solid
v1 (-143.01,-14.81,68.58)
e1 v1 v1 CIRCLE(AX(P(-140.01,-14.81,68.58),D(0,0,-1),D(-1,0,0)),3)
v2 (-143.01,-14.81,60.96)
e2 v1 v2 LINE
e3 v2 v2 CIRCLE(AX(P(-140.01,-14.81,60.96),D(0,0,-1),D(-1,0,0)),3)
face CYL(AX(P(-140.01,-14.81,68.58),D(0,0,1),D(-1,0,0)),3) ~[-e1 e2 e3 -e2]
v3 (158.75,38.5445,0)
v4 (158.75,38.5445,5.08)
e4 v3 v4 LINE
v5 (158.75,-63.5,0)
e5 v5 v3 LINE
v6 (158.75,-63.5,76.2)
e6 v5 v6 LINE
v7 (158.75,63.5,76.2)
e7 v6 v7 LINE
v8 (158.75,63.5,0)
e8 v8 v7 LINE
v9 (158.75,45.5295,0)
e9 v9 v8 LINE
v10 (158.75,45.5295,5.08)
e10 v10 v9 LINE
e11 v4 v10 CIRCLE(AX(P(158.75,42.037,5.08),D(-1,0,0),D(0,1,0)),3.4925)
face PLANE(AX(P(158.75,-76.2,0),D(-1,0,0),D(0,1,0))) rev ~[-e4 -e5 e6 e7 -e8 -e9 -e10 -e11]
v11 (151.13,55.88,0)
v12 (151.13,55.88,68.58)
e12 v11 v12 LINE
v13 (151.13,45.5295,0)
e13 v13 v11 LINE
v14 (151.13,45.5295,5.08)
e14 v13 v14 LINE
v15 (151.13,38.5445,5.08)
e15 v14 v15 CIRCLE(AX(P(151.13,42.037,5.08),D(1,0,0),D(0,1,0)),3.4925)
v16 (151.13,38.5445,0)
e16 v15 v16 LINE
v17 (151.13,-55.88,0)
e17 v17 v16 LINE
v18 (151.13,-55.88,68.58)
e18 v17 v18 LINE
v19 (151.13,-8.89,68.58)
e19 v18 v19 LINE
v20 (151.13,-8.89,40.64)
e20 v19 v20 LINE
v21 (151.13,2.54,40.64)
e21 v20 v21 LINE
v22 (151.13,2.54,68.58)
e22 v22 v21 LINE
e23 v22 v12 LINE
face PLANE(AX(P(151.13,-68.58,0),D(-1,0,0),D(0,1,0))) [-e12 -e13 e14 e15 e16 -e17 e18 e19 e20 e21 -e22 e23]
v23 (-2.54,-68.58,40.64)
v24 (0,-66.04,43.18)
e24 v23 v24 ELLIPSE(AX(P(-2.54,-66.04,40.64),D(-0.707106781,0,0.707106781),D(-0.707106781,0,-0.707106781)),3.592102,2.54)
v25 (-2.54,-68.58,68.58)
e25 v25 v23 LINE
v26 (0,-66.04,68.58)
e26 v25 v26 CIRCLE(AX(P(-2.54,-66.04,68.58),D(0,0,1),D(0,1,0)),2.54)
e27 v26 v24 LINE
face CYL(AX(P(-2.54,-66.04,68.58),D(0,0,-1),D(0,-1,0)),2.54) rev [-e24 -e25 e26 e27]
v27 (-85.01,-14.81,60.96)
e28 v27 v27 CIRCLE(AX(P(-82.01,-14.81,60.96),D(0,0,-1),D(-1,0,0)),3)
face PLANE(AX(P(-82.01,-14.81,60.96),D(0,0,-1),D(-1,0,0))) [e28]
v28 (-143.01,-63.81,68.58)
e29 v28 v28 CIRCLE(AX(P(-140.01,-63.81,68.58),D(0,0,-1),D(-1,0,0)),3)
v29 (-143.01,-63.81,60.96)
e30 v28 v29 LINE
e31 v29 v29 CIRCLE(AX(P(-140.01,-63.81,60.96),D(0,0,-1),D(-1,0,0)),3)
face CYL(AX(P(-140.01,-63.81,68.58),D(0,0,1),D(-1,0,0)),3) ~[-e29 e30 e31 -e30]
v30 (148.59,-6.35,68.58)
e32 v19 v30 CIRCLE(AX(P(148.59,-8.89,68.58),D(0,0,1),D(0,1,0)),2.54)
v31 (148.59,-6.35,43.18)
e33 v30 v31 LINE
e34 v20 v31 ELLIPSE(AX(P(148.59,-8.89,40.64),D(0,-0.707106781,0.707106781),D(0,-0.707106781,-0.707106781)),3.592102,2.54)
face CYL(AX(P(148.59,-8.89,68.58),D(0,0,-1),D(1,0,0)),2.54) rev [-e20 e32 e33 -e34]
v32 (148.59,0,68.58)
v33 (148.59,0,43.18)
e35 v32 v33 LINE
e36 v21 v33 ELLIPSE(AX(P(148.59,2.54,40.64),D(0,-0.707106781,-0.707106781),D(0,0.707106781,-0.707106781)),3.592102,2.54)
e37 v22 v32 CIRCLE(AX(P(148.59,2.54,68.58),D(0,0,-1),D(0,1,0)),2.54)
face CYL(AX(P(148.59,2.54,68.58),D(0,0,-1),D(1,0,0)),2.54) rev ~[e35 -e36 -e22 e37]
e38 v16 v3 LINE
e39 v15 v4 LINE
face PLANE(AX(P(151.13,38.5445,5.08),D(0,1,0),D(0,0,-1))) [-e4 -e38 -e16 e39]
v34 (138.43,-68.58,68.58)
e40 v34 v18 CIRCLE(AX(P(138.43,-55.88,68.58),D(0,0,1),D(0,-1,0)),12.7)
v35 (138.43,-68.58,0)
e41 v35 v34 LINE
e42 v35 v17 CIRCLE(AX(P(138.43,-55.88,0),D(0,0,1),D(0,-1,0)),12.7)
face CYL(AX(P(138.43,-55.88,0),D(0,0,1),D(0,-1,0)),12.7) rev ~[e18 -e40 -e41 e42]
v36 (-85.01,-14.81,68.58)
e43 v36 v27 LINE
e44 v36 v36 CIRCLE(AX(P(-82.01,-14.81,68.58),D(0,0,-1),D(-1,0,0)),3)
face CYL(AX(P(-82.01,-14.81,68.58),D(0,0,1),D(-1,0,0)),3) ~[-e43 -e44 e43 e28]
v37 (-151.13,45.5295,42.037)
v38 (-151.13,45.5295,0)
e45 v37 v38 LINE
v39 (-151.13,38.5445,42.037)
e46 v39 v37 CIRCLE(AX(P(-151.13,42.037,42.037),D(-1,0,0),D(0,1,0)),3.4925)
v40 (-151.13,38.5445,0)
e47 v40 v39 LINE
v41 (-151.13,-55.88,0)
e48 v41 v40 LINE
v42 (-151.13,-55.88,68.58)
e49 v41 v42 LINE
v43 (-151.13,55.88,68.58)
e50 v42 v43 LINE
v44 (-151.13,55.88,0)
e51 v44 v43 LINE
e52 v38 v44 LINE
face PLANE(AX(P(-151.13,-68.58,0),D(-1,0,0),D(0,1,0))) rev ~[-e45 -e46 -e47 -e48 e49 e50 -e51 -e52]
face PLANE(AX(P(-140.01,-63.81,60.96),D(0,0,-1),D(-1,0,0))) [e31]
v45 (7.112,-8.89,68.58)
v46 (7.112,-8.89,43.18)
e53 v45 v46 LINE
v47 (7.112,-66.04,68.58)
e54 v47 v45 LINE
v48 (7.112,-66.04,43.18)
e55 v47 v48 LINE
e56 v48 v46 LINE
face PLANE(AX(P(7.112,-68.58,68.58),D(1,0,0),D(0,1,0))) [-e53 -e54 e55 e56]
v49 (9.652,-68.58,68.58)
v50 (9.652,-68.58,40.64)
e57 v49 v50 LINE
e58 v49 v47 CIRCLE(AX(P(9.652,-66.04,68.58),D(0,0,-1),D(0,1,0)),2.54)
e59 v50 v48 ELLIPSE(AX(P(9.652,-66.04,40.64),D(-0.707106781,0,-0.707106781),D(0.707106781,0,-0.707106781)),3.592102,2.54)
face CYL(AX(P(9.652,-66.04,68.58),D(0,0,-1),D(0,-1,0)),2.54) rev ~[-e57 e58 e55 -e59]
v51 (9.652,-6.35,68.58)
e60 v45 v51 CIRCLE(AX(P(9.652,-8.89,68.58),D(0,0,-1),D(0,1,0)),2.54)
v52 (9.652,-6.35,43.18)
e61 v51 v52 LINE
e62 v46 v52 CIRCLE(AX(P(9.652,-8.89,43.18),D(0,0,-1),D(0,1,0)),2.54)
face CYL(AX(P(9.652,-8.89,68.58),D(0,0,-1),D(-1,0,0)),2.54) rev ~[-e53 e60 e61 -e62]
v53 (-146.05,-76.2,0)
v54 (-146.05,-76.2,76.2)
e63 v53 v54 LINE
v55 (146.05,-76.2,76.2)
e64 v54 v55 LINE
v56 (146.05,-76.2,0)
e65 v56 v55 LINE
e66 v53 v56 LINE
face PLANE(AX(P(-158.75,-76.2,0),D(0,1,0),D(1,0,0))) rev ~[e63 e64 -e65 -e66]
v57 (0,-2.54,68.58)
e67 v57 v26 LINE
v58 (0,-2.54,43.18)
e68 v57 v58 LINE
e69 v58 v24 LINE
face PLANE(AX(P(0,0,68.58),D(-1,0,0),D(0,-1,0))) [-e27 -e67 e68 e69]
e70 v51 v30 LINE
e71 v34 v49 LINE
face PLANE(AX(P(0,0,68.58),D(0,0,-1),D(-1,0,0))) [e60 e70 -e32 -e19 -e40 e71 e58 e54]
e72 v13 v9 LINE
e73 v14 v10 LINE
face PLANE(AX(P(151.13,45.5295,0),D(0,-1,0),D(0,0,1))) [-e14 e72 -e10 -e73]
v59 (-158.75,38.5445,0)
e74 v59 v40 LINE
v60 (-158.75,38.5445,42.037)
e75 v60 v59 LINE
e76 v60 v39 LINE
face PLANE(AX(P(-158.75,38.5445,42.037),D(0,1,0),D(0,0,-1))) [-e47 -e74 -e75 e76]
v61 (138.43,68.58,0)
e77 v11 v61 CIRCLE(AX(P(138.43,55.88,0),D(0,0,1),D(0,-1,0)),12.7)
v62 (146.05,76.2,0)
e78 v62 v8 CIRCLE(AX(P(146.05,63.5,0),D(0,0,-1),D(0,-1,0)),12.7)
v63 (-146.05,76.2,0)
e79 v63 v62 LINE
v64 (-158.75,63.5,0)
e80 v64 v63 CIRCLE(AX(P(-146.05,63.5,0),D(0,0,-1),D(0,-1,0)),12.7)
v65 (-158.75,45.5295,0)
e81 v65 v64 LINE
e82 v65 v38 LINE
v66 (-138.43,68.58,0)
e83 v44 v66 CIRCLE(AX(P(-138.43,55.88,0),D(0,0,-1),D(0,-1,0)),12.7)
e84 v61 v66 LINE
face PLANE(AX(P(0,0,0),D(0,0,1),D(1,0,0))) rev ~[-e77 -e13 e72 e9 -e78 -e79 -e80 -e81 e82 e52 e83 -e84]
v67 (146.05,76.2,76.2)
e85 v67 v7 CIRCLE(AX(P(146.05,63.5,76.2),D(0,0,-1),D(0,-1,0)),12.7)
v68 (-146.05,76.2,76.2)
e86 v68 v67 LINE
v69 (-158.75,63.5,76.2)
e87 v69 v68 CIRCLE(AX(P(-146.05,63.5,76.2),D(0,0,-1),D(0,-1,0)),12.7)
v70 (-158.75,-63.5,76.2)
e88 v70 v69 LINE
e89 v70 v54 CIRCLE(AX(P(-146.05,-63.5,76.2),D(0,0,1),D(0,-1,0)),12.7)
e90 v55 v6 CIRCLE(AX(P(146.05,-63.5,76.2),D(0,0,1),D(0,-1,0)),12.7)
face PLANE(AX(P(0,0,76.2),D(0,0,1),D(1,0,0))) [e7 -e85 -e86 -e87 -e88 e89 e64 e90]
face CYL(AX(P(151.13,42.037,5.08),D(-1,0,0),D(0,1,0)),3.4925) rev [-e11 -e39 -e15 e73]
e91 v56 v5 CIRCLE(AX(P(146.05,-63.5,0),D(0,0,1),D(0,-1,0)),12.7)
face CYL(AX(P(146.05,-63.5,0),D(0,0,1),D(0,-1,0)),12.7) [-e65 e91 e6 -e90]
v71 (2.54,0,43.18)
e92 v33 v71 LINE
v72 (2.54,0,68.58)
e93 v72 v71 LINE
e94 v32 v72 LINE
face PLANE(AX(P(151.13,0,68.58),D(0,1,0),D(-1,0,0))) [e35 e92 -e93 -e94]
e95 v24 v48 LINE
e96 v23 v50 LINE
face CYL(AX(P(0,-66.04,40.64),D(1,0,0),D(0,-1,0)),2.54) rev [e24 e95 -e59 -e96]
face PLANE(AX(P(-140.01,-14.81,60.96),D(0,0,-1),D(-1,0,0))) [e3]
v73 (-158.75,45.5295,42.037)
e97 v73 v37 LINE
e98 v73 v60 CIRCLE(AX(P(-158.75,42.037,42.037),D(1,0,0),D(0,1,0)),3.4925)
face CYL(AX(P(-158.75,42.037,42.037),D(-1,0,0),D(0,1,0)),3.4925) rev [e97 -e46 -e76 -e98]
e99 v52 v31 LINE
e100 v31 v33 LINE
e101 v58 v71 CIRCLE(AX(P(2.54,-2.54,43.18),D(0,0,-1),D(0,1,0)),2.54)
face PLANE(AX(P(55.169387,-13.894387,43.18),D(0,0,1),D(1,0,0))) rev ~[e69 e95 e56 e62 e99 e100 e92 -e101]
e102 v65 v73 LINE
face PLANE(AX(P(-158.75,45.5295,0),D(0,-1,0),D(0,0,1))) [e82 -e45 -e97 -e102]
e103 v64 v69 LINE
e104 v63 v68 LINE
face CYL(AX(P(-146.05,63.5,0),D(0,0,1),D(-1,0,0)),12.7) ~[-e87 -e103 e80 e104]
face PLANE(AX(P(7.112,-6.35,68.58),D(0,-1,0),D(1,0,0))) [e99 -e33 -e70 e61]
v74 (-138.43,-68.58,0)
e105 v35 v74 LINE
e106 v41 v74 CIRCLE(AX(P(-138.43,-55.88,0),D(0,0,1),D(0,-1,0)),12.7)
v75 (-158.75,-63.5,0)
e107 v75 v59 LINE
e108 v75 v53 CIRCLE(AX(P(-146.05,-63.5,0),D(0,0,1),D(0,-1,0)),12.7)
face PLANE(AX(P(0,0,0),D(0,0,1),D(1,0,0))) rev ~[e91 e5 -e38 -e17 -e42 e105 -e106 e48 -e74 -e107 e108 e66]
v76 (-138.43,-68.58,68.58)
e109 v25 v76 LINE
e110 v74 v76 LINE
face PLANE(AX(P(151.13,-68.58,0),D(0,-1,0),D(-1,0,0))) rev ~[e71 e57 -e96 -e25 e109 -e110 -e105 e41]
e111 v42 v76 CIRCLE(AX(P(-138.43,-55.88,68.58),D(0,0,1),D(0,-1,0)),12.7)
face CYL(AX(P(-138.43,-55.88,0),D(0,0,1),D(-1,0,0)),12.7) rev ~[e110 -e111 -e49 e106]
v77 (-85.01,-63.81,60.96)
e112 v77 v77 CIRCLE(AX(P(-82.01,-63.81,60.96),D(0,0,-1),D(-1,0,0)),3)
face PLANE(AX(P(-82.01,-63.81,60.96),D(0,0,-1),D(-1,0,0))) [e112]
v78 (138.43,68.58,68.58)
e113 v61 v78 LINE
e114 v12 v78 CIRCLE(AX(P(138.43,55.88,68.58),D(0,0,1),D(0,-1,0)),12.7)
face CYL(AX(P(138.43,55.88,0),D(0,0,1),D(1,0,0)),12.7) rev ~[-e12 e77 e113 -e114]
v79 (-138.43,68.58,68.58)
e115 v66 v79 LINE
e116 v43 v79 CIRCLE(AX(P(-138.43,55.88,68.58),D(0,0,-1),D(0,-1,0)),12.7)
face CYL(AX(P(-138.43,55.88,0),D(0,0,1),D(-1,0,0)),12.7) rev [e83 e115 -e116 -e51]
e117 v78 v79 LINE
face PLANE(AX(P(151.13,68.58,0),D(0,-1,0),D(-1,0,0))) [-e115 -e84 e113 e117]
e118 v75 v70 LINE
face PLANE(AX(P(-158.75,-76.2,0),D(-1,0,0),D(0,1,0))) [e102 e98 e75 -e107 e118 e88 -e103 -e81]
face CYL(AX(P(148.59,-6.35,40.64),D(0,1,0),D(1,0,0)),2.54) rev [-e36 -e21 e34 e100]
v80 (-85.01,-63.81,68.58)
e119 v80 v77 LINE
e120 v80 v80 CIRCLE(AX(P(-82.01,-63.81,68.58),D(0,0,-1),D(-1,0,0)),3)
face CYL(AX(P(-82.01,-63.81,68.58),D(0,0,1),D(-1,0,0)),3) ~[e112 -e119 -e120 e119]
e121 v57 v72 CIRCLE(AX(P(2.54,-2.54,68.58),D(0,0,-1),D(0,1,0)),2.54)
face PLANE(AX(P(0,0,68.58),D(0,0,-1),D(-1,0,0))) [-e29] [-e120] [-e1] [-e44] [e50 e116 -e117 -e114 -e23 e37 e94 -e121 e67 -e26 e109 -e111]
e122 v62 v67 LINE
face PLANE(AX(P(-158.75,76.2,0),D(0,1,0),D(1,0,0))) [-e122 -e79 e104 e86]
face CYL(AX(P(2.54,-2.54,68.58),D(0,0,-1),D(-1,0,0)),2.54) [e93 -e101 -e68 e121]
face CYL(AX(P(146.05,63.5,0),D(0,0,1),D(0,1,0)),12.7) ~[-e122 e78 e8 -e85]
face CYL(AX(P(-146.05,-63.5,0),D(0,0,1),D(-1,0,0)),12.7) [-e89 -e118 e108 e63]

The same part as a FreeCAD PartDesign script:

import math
import FreeCAD as App
import Part
import Sketcher
Q = App.Units.Quantity


def edges_at(feature, points):
    """Names of the edges that pass closest to the given points."""
    edges = feature.Shape.Edges
    near = lambda p: min(range(len(edges)), key=lambda i: edges[i].distToShape(Part.Vertex(*p))[0])
    return sorted({f"Edge{near(p) + 1}" for p in points})


def add_polygon(sketch, points):
    """Adds a closed chain of lines whose ends are joined by coincident constraints."""
    first, n = sketch.GeometryCount, len(points)
    for a, b in zip(points, points[1:] + points[:1]):
        sketch.addGeometry(Part.LineSegment(App.Vector(*a, 0), App.Vector(*b, 0)), False)
    for i in range(n):
        sketch.addConstraint(Sketcher.Constraint("Coincident", first + i, 2, first + (i + 1) % n, 1))

doc = App.newDocument("Part")
body = doc.addObject("PartDesign::Body", "Body")

sketch1 = body.newObject("Sketcher::SketchObject", "Sketch")
sketch1.AttachmentSupport = (doc.getObject("XY_Plane"), [""])
sketch1.MapMode = "FlatFace"
add_polygon(sketch1, [(-159, 76), (-159, -76), (159, -76), (159, 76)])
sketch1.addConstraint([
    Sketcher.Constraint("Vertical", 0),
    Sketcher.Constraint("Horizontal", 1),
    Sketcher.Constraint("Vertical", 2),
    Sketcher.Constraint("Horizontal", 3),
    Sketcher.Constraint("Symmetric", 0, 2, 2, 2, -1, 1),
    Sketcher.Constraint("DistanceY", 0, 2, 0, 1, Q("6 in")),
    Sketcher.Constraint("DistanceX", 1, 1, 1, 2, Q("12.5 in")),
])
pad1 = body.newObject("PartDesign::Pad", "Pad")
pad1.Profile = sketch1
pad1.Length = Q("3 in")

sketch2 = body.newObject("Sketcher::SketchObject", "Sketch001")
sketch2.AttachmentSupport = (doc.getObject("XY_Plane"), [""])
sketch2.MapMode = "FlatFace"
add_polygon(sketch2, [(151, 69), (151, -69), (-151, -69), (-151, 69)])
sketch2.addConstraint([
    Sketcher.Constraint("Vertical", 0),
    Sketcher.Constraint("Horizontal", 1),
    Sketcher.Constraint("Vertical", 2),
    Sketcher.Constraint("Horizontal", 3),
    Sketcher.Constraint("Symmetric", 0, 2, 2, 2, -1, 1),
    Sketcher.Constraint("DistanceX", 1, 2, 1, 1, Q("11.9 in")),
    Sketcher.Constraint("DistanceY", 0, 2, 0, 1, Q("5.4 in")),
])
pocket1 = body.newObject("PartDesign::Pocket", "Pocket")
pocket1.Profile = sketch2
pocket1.Length = Q("2.7 in")
pocket1.Reversed = True

sketch3 = body.newObject("Sketcher::SketchObject", "Sketch002")
sketch3.AttachmentSupport = (doc.getObject("YZ_Plane"), [""])
sketch3.MapMode = "FlatFace"
sketch3.AttachmentOffset = App.Placement(App.Vector(0, 0, -6.25 * 25.4), App.Rotation())
sketch3.addGeometry([
    Part.LineSegment(App.Vector(38.5, 0, 0), App.Vector(38.5, 42, 0)),
    Part.ArcOfCircle(Part.Circle(App.Vector(42, 42, 0), App.Vector(0, 0, 1), 3.5), math.radians(0), math.radians(180)),
    Part.LineSegment(App.Vector(45.5, 42, 0), App.Vector(45.5, 0, 0)),
    Part.LineSegment(App.Vector(45.5, 0, 0), App.Vector(38.5, 0, 0)),
], False)
sketch3.addConstraint([
    Sketcher.Constraint("Tangent", 0, 2, 1, 2),
    Sketcher.Constraint("Tangent", 1, 1, 2, 1),
    Sketcher.Constraint("Coincident", 2, 2, 3, 1),
    Sketcher.Constraint("Coincident", 3, 2, 0, 1),
    Sketcher.Constraint("Vertical", 0),
    Sketcher.Constraint("Vertical", 2),
    Sketcher.Constraint("Horizontal", 3),
    Sketcher.Constraint("PointOnObject", 2, 2, -1),
    Sketcher.Constraint("Radius", 1, Q("0.1375 in")),
    Sketcher.Constraint("DistanceY", 0, 1, 0, 2, Q("1.655 in")),
    Sketcher.Constraint("DistanceX", -1, 1, 1, 3, Q("1.655 in")),
])
pocket2 = body.newObject("PartDesign::Pocket", "Pocket001")
pocket2.Profile = sketch3
pocket2.Type = "UpToFirst"
pocket2.Reversed = True

sketch4 = body.newObject("Sketcher::SketchObject", "Sketch003")
sketch4.AttachmentSupport = (doc.getObject("XY_Plane"), [""])
sketch4.MapMode = "FlatFace"
sketch4.AttachmentOffset = App.Placement(App.Vector(0, 0, 2.7 * 25.4), App.Rotation())
add_polygon(sketch4, [(0, 0), (151, 0), (151, -6), (7, -6), (7, -69), (0, -69)])
sketch4.addConstraint([
    Sketcher.Constraint("Horizontal", 0),
    Sketcher.Constraint("Vertical", 1),
    Sketcher.Constraint("Horizontal", 2),
    Sketcher.Constraint("Vertical", 3),
    Sketcher.Constraint("Horizontal", 4),
    Sketcher.Constraint("Vertical", 5),
    Sketcher.Constraint("Coincident", 5, 2, -1, 1),
    Sketcher.Constraint("DistanceY", 5, 1, 5, 2, Q("2.7 in")),
    Sketcher.Constraint("DistanceX", 0, 1, 0, 2, Q("5.95 in")),
    Sketcher.Constraint("DistanceX", 2, 2, 2, 1, Q("5.67 in")),
    Sketcher.Constraint("DistanceY", 1, 2, 1, 1, Q("0.25 in")),
])
pad2 = body.newObject("PartDesign::Pad", "Pad001")
pad2.Profile = sketch4
pad2.Length = Q("1 in")
pad2.Reversed = True

sketch5 = body.newObject("Sketcher::SketchObject", "Sketch004")
sketch5.AttachmentSupport = (doc.getObject("YZ_Plane"), [""])
sketch5.MapMode = "FlatFace"
sketch5.AttachmentOffset = App.Placement(App.Vector(0, 0, 5.95 * 25.4), App.Rotation())
sketch5.addGeometry([
    Part.LineSegment(App.Vector(38.5, 0, 0), App.Vector(38.5, 5.1, 0)),
    Part.ArcOfCircle(Part.Circle(App.Vector(42, 5.1, 0), App.Vector(0, 0, 1), 3.5), math.radians(0), math.radians(180)),
    Part.LineSegment(App.Vector(45.5, 5.1, 0), App.Vector(45.5, 0, 0)),
    Part.LineSegment(App.Vector(45.5, 0, 0), App.Vector(38.5, 0, 0)),
], False)
sketch5.addConstraint([
    Sketcher.Constraint("Tangent", 0, 2, 1, 2),
    Sketcher.Constraint("Tangent", 1, 1, 2, 1),
    Sketcher.Constraint("Coincident", 2, 2, 3, 1),
    Sketcher.Constraint("Coincident", 3, 2, 0, 1),
    Sketcher.Constraint("Vertical", 0),
    Sketcher.Constraint("Vertical", 2),
    Sketcher.Constraint("Horizontal", 3),
    Sketcher.Constraint("PointOnObject", 2, 2, -1),
    Sketcher.Constraint("DistanceY", 0, 1, 0, 2, Q("0.2 in")),
    Sketcher.Constraint("Radius", 1, Q("0.1375 in")),
    Sketcher.Constraint("DistanceX", -1, 1, 1, 3, Q("1.655 in")),
])
pocket3 = body.newObject("PartDesign::Pocket", "Pocket002")
pocket3.Profile = sketch5
pocket3.Type = "UpToFirst"
pocket3.Reversed = True

sketch6 = body.newObject("Sketcher::SketchObject", "Sketch005")
sketch6.AttachmentSupport = (doc.getObject("XY_Plane"), [""])
sketch6.MapMode = "FlatFace"
sketch6.AttachmentOffset = App.Placement(App.Vector(0, 0, 2.7 * 25.4), App.Rotation())
sketch6.addGeometry([
    Part.Circle(App.Vector(-140, -63.8, 0), App.Vector(0, 0, 1), 3),
    Part.Circle(App.Vector(-82, -63.8, 0), App.Vector(0, 0, 1), 3),
    Part.Circle(App.Vector(-140, -14.8, 0), App.Vector(0, 0, 1), 3),
    Part.Circle(App.Vector(-82, -14.8, 0), App.Vector(0, 0, 1), 3),
], False)
sketch6.addConstraint([
    Sketcher.Constraint("Equal", 0, 1),
    Sketcher.Constraint("Equal", 1, 2),
    Sketcher.Constraint("Equal", 2, 3),
    Sketcher.Constraint("Horizontal", 0, 3, 1, 3),
    Sketcher.Constraint("Horizontal", 2, 3, 3, 3),
    Sketcher.Constraint("Vertical", 0, 3, 2, 3),
    Sketcher.Constraint("Vertical", 1, 3, 3, 3),
    Sketcher.Constraint("Diameter", 0, 6.0),
    Sketcher.Constraint("DistanceX", 0, 3, -1, 1, 140.01),
    Sketcher.Constraint("DistanceY", 0, 3, -1, 1, 63.81),
    Sketcher.Constraint("DistanceX", 1, 3, -1, 1, 82.01),
    Sketcher.Constraint("DistanceY", 2, 3, -1, 1, 14.81),
])
pad3 = body.newObject("PartDesign::Pad", "Pad002")
pad3.Profile = sketch6
pad3.Length = Q("0.3 in")
pad3.Reversed = True
doc.recompute()

fillet = body.newObject("PartDesign::Fillet", "Fillet")
fillet.Base = (pad3, edges_at(pad3, [
    (-151.13, 68.58, 34.29),
    (151.13, 68.58, 34.29),
    (151.13, -68.58, 34.29),
    (-151.13, -68.58, 34.29),
    (-158.75, 76.2, 38.1),
    (158.75, 76.2, 38.1),
    (158.75, -76.2, 38.1),
    (-158.75, -76.2, 38.1),
]))
fillet.Radius = Q("0.5 in")
doc.recompute()

fillet2 = body.newObject("PartDesign::Fillet", "Fillet001")
fillet2.Base = (fillet, edges_at(fillet, [
    (151.13, 0, 55.88),
    (151.13, -6.35, 55.88),
    (7.112, -6.35, 55.88),
    (7.112, -68.58, 55.88),
    (0, -68.58, 55.88),
    (0, 0, 55.88),
    (151.13, -3.175, 43.18),
    (3.556, -68.58, 43.18),
]))
fillet2.Radius = Q("0.1 in")

doc.recompute()
